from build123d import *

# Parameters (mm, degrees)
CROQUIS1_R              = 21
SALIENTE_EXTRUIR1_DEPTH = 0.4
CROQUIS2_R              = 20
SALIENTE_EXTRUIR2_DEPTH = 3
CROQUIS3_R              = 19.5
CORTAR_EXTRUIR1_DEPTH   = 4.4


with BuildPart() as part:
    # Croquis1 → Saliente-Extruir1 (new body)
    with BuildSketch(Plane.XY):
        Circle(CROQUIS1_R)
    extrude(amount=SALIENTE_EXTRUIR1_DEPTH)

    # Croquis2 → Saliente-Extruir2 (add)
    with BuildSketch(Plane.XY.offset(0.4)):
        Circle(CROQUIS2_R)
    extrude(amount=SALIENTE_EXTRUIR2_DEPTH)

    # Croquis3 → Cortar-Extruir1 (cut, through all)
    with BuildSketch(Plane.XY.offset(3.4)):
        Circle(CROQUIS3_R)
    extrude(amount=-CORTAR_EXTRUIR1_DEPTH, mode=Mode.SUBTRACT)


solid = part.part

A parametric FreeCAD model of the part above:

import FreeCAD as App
import Part
import Sketcher
from FreeCAD import Vector
Q = App.Units.Quantity

doc = App.newDocument("Part")
params = doc.addObject("Spreadsheet::Sheet", "Params")
for row, (alias, value) in enumerate([
    ("sketch1_diameter", "42 mm"),
    ("pad1_length", "0.4 mm"),
    ("sketch2_diameter", "40 mm"),
    ("pad2_length", "3 mm"),
    ("sketch3_diameter", "39 mm"),
], start=1):
    params.set(f"A{row}", alias)
    params.set(f"B{row}", "=" + value)
    params.setAlias(f"B{row}", alias)

body = doc.addObject("PartDesign::Body", "Body")

sketch1 = body.newObject("Sketcher::SketchObject", "Sketch")
sketch1.AttachmentSupport = (doc.getObject("XY_Plane"), [""])
sketch1.MapMode = "FlatFace"
sketch1.addGeometry(Part.Circle(Vector(0, 0, 0), Vector(0, 0, 1), 21), False)
sketch1.addConstraint(Sketcher.Constraint("Coincident", 0, 3, -1, 1))
sketch1.addConstraint(Sketcher.Constraint("Diameter", 0, Q("42 mm")))
sketch1.setExpression("Constraints[1]", "Params.sketch1_diameter")
pad1 = body.newObject("PartDesign::Pad", "Pad")
pad1.Profile = sketch1
pad1.setExpression("Length", "Params.pad1_length")

sketch2 = body.newObject("Sketcher::SketchObject", "Sketch001")
sketch2.AttachmentSupport = (doc.getObject("XY_Plane"), [""])
sketch2.MapMode = "FlatFace"
sketch2.AttachmentOffset = App.Placement(Vector(0, 0, 0.4), App.Rotation())
sketch2.addGeometry(Part.Circle(Vector(0, 0, 0), Vector(0, 0, 1), 20), False)
sketch2.addConstraint(Sketcher.Constraint("Coincident", 0, 3, -1, 1))
sketch2.addConstraint(Sketcher.Constraint("Diameter", 0, Q("40 mm")))
sketch2.setExpression("Constraints[1]", "Params.sketch2_diameter")
pad2 = body.newObject("PartDesign::Pad", "Pad001")
pad2.Profile = sketch2
pad2.setExpression("Length", "Params.pad2_length")

sketch3 = body.newObject("Sketcher::SketchObject", "Sketch002")
sketch3.AttachmentSupport = (doc.getObject("XY_Plane"), [""])
sketch3.MapMode = "FlatFace"
sketch3.AttachmentOffset = App.Placement(Vector(0, 0, 3.4), App.Rotation())
sketch3.addGeometry(Part.Circle(Vector(0, 0, 0), Vector(0, 0, 1), 19.5), False)
sketch3.addConstraint(Sketcher.Constraint("Coincident", 0, 3, -1, 1))
sketch3.addConstraint(Sketcher.Constraint("Diameter", 0, Q("39 mm")))
sketch3.setExpression("Constraints[1]", "Params.sketch3_diameter")
pocket1 = body.newObject("PartDesign::Pocket", "Pocket")
pocket1.Profile = sketch3
pocket1.Type = "ThroughAll"

doc.recompute()
